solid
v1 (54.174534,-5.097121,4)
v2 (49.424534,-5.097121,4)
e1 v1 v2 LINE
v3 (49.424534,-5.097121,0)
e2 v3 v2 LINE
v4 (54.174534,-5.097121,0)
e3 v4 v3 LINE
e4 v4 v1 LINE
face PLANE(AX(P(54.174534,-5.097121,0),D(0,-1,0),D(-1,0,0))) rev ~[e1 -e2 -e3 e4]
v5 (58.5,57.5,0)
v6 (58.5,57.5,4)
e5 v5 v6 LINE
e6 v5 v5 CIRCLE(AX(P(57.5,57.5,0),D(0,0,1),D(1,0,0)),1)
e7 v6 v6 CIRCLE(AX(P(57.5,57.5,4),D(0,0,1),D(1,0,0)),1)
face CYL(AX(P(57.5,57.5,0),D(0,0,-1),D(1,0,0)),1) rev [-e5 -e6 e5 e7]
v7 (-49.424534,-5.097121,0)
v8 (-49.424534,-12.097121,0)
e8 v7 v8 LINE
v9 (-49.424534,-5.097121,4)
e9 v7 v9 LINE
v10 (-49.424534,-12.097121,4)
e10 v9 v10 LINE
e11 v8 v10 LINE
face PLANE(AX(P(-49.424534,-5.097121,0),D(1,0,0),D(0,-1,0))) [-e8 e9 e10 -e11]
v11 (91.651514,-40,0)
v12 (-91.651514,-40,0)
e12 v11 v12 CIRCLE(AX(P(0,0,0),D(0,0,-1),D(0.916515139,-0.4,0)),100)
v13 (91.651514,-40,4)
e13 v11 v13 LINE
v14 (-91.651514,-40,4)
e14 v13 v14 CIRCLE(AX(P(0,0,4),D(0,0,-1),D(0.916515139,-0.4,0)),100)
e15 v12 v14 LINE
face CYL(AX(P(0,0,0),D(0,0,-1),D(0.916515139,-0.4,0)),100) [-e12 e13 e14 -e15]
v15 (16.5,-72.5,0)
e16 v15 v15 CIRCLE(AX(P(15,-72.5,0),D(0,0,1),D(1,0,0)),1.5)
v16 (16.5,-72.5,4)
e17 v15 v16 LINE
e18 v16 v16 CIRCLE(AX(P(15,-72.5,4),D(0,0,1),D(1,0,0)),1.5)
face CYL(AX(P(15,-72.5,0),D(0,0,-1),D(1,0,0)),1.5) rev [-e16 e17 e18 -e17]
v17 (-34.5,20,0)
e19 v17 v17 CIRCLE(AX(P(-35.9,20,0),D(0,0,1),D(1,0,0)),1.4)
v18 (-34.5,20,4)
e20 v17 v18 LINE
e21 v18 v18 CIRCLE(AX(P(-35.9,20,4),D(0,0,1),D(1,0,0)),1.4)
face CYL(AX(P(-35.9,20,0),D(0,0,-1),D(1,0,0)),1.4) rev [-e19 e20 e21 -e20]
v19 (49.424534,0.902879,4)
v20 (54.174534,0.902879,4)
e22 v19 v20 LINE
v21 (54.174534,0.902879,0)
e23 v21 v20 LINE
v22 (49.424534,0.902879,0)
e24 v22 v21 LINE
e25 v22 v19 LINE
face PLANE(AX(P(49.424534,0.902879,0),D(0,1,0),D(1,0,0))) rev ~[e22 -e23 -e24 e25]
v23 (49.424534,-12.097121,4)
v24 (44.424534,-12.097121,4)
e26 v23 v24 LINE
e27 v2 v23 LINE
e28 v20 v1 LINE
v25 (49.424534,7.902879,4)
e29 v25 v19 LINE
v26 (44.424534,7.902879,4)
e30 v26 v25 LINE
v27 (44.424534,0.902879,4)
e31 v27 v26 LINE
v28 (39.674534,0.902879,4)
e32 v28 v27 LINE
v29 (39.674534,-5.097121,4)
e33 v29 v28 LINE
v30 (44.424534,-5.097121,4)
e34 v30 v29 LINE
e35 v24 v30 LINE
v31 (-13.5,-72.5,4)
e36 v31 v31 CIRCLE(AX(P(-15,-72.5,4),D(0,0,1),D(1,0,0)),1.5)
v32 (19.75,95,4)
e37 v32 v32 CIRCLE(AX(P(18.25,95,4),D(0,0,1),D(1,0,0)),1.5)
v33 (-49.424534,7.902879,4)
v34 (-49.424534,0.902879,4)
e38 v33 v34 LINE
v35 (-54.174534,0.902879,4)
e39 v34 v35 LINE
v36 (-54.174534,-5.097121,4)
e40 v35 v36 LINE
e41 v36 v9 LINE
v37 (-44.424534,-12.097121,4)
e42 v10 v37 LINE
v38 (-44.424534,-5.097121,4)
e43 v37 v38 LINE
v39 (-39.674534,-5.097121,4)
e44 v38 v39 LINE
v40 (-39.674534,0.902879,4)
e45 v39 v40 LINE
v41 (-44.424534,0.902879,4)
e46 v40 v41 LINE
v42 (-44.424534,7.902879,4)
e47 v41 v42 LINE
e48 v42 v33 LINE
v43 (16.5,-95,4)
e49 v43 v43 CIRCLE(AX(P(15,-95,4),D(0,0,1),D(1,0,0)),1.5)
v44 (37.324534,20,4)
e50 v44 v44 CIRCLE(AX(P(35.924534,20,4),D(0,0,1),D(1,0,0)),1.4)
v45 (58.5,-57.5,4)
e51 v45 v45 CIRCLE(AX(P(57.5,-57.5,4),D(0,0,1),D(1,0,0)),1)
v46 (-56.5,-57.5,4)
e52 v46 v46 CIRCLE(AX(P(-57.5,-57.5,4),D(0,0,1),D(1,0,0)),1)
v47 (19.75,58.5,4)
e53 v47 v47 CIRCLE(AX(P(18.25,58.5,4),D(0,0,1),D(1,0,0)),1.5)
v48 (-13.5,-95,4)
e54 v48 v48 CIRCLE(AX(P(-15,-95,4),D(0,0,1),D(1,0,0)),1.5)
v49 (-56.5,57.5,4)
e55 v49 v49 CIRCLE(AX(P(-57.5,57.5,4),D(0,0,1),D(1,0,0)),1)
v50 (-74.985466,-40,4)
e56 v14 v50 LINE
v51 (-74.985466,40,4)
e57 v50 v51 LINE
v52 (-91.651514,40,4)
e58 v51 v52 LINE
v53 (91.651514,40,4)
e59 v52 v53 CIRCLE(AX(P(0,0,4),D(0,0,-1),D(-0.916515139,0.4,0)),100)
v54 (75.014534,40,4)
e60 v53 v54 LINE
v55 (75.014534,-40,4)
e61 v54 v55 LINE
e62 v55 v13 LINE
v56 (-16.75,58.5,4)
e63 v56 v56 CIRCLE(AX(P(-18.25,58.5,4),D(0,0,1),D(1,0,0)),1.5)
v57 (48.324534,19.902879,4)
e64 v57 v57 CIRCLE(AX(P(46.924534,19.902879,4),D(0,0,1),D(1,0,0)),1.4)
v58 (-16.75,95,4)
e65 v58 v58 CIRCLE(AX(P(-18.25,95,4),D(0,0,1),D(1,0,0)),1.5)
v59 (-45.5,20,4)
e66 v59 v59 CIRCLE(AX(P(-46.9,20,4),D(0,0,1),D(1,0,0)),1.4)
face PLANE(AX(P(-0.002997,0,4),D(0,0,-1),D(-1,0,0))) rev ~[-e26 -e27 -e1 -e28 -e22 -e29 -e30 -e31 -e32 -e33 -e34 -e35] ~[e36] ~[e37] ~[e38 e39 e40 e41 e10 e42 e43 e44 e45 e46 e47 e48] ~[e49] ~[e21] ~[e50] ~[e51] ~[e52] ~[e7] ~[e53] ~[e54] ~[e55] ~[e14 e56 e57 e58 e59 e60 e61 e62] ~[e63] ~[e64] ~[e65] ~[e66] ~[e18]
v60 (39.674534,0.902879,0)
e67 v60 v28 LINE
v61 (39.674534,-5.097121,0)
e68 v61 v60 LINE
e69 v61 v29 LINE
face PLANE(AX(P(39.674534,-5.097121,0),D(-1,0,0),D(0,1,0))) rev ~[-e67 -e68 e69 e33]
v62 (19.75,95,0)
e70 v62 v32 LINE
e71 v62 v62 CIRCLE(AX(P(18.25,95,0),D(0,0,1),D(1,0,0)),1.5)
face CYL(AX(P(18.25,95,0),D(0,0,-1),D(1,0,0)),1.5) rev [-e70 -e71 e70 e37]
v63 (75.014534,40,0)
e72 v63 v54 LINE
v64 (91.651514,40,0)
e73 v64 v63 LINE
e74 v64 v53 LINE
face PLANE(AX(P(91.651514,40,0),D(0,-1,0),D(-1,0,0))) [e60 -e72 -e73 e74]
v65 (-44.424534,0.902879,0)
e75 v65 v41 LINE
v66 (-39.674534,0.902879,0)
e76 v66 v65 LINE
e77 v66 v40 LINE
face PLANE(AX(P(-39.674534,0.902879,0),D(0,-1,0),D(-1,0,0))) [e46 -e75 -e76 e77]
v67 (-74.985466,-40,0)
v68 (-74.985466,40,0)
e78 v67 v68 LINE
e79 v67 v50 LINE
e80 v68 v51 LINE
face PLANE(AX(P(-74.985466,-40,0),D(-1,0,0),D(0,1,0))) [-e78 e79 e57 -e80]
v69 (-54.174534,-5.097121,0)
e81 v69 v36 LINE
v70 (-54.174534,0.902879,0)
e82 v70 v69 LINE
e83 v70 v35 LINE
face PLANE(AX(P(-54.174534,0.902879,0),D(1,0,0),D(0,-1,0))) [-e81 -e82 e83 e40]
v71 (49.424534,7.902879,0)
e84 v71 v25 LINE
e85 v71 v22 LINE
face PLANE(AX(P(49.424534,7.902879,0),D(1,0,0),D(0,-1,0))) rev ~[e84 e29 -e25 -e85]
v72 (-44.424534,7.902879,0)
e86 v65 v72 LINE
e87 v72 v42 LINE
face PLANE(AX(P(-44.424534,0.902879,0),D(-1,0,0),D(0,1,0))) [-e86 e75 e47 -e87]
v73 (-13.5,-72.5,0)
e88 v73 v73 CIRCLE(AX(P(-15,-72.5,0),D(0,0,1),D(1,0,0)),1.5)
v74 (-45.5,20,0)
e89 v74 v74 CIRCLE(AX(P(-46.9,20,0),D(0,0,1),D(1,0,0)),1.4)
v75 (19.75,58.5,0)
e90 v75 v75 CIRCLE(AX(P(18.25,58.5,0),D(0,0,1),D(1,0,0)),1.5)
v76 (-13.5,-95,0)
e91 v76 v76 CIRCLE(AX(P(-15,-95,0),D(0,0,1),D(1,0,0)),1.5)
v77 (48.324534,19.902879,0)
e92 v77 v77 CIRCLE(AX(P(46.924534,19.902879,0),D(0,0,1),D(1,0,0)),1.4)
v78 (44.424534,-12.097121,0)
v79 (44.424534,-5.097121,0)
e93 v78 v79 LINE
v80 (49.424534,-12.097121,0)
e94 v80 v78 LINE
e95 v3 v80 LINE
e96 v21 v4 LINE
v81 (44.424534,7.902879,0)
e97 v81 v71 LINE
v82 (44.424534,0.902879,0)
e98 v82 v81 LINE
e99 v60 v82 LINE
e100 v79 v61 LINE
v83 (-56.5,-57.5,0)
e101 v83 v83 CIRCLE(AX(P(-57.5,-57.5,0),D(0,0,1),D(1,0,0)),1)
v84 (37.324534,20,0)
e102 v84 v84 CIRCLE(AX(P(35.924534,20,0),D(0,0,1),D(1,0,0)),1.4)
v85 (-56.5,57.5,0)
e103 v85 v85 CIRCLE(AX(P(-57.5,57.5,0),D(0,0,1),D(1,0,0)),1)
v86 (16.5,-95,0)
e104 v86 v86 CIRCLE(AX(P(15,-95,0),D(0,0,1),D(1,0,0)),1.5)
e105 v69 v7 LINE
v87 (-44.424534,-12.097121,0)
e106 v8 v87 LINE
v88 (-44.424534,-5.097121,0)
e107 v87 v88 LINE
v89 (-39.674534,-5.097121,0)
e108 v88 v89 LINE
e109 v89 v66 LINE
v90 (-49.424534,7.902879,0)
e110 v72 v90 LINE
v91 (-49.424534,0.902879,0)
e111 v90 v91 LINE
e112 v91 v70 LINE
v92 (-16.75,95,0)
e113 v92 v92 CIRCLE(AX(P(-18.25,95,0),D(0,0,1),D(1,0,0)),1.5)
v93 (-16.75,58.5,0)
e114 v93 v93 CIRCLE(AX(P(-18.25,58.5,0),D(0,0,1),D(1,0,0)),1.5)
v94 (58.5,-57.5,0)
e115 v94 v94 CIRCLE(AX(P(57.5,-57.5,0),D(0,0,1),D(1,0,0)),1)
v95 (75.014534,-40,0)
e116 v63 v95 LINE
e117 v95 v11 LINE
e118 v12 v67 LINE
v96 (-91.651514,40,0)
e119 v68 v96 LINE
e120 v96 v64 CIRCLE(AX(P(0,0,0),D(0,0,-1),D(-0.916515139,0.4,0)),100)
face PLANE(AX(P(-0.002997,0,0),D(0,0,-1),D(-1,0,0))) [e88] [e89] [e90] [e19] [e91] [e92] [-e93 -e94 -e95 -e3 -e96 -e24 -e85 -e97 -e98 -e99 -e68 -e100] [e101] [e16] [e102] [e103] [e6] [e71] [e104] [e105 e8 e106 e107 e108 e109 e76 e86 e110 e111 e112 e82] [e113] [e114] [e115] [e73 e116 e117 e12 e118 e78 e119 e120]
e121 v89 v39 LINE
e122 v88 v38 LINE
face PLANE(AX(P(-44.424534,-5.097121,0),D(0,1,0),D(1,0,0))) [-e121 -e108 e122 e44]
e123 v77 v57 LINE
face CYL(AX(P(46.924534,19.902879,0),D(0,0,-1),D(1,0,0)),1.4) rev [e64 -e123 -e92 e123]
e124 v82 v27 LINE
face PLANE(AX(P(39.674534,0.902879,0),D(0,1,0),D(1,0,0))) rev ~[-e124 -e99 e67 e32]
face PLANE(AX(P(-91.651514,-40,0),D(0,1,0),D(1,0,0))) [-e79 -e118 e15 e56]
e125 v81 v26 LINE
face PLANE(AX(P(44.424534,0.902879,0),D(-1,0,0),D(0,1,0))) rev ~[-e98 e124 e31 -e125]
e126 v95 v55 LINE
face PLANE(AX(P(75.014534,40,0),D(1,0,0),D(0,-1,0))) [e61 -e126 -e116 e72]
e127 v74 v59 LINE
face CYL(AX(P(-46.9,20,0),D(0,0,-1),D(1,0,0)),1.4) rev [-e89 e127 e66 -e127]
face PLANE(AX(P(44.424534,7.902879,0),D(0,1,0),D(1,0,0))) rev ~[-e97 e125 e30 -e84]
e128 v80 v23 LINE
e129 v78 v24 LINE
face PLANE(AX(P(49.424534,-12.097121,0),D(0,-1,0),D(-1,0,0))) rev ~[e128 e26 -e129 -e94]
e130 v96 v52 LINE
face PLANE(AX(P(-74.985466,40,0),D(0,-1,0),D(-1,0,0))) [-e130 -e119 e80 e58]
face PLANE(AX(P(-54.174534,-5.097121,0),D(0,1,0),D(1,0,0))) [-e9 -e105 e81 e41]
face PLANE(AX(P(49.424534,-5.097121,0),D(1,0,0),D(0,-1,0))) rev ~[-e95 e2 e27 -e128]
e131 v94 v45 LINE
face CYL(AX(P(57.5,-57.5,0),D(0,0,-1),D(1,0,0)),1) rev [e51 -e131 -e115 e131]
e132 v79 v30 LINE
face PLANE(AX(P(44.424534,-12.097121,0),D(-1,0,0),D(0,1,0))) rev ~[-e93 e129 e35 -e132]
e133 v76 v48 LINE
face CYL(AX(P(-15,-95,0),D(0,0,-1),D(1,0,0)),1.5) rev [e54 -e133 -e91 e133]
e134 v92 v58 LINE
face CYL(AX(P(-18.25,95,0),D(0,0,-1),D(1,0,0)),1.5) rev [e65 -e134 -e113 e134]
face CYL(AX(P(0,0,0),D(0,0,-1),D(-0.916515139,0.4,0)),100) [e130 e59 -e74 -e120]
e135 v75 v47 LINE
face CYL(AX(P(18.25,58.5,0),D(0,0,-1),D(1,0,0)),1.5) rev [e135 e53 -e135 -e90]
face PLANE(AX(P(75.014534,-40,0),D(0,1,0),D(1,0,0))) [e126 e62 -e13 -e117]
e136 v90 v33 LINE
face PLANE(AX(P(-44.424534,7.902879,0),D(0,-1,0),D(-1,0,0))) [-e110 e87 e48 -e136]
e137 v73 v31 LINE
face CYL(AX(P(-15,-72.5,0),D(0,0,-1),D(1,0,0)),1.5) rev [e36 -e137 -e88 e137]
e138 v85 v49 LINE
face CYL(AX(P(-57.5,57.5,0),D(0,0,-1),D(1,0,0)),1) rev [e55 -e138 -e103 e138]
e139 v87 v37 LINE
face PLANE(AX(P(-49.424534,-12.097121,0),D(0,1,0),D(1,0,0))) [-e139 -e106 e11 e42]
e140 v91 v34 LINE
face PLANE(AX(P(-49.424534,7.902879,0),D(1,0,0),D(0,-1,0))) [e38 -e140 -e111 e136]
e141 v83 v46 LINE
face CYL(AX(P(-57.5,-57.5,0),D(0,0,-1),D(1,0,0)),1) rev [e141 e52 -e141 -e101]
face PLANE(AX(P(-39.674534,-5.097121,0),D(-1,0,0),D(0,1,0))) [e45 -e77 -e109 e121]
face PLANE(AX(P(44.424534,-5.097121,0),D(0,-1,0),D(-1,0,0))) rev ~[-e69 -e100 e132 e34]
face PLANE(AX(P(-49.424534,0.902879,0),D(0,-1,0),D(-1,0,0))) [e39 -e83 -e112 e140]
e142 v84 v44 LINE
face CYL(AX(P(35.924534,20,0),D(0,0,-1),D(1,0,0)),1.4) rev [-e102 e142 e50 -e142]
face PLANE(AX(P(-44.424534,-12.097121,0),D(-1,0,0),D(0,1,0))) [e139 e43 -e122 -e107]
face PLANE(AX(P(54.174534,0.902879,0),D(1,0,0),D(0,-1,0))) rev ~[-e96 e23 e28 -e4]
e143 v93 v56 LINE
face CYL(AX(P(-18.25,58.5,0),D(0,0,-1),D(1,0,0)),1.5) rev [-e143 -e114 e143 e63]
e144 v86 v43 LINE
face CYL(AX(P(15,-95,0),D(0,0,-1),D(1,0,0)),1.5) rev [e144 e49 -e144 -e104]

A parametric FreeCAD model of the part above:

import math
import FreeCAD as App
import Part
import Sketcher

V = App.Vector


def add_polygon(sketch, points):
    """Adds a closed chain of lines whose ends are joined by coincident constraints."""
    first, n = sketch.GeometryCount, len(points)
    for a, b in zip(points, points[1:] + points[:1]):
        sketch.addGeometry(Part.LineSegment(App.Vector(*a, 0), App.Vector(*b, 0)), False)
    for i in range(n):
        sketch.addConstraint(Sketcher.Constraint("Coincident", first + i, 2, first + (i + 1) % n, 1))

doc = App.newDocument("Part")
body = doc.addObject("PartDesign::Body", "Body")

# Sketch on XY plane
sketch1 = body.newObject("Sketcher::SketchObject", "Sketch")
sketch1.AttachmentSupport = (doc.getObject("XY_Plane"), [""])
sketch1.MapMode = "FlatFace"
sketch1.addGeometry(Part.LineSegment(V(91.7, -40, 0), V(75, -40, 0)), False)  # 0
sketch1.addGeometry(Part.LineSegment(V(75, -40, 0), V(75, 40, 0)), False)  # 1
sketch1.addGeometry(Part.LineSegment(V(75, 40, 0), V(91.7, 40, 0)), False)  # 2
sketch1.addGeometry(Part.ArcOfCircle(Part.Circle(V(0, 0, 0), V(0, 0, 1), 100), math.radians(24), math.radians(156)), False)  # 3
sketch1.addGeometry(Part.LineSegment(V(-91.7, 40, 0), V(-75, 40, 0)), False)  # 4
sketch1.addGeometry(Part.LineSegment(V(-75, 40, 0), V(-75, -40, 0)), False)  # 5
sketch1.addGeometry(Part.LineSegment(V(-75, -40, 0), V(-91.7, -40, 0)), False)  # 6
sketch1.addGeometry(Part.ArcOfCircle(Part.Circle(V(0, 0, 0), V(0, 0, 1), 100), math.radians(-156), math.radians(-24)), False)  # 7
sketch1.addGeometry(Part.Circle(V(57.5, -57.5, 0), V(0, 0, 1), 1), False)  # 8
sketch1.addGeometry(Part.Circle(V(15, -95, 0), V(0, 0, 1), 1.5), False)  # 9
sketch1.addGeometry(Part.Circle(V(15, -72.5, 0), V(0, 0, 1), 1.5), False)  # 10
add_polygon(sketch1, [(49.4, -5.1), (49.4, -12.1), (44.4, -12.1), (44.4, -5.1), (39.7, -5.1), (39.7, 0.9), (44.4, 0.9), (44.4, 7.9), (49.4, 7.9), (49.4, 0.9), (54.2, 0.9), (54.2, -5.1)])  # lines 11-22
sketch1.addGeometry(Part.Circle(V(-15, -95, 0), V(0, 0, 1), 1.5), False)  # 23
sketch1.addGeometry(Part.Circle(V(-15, -72.5, 0), V(0, 0, 1), 1.5), False)  # 24
sketch1.addGeometry(Part.Circle(V(-57.5, -57.5, 0), V(0, 0, 1), 1), False)  # 25
add_polygon(sketch1, [(-54.2, 0.9), (-49.4, 0.9), (-49.4, 7.9), (-44.4, 7.9), (-44.4, 0.9), (-39.7, 0.9), (-39.7, -5.1), (-44.4, -5.1), (-44.4, -12.1), (-49.4, -12.1), (-49.4, -5.1), (-54.2, -5.1)])  # lines 26-37
sketch1.addGeometry(Part.Circle(V(46.9, 19.9, 0), V(0, 0, 1), 1.4), False)  # 38
sketch1.addGeometry(Part.Circle(V(35.9, 20, 0), V(0, 0, 1), 1.4), False)  # 39
sketch1.addGeometry(Part.Circle(V(57.5, 57.5, 0), V(0, 0, 1), 1), False)  # 40
sketch1.addGeometry(Part.Circle(V(18.2, 58.5, 0), V(0, 0, 1), 1.5), False)  # 41
sketch1.addGeometry(Part.Circle(V(18.2, 95, 0), V(0, 0, 1), 1.5), False)  # 42
sketch1.addGeometry(Part.Circle(V(-35.9, 20, 0), V(0, 0, 1), 1.4), False)  # 43
sketch1.addGeometry(Part.Circle(V(-46.9, 20, 0), V(0, 0, 1), 1.4), False)  # 44
sketch1.addGeometry(Part.Circle(V(-18.2, 58.5, 0), V(0, 0, 1), 1.5), False)  # 45
sketch1.addGeometry(Part.Circle(V(-18.2, 95, 0), V(0, 0, 1), 1.5), False)  # 46
sketch1.addGeometry(Part.Circle(V(-57.5, 57.5, 0), V(0, 0, 1), 1), False)  # 47
sketch1.addConstraint(Sketcher.Constraint("Coincident", 0, 2, 1, 1))
sketch1.addConstraint(Sketcher.Constraint("Coincident", 1, 2, 2, 1))
sketch1.addConstraint(Sketcher.Constraint("Coincident", 2, 2, 3, 1))
sketch1.addConstraint(Sketcher.Constraint("Coincident", 3, 2, 4, 1))
sketch1.addConstraint(Sketcher.Constraint("Coincident", 4, 2, 5, 1))
sketch1.addConstraint(Sketcher.Constraint("Coincident", 5, 2, 6, 1))
sketch1.addConstraint(Sketcher.Constraint("Coincident", 6, 2, 7, 1))
sketch1.addConstraint(Sketcher.Constraint("Coincident", 7, 2, 0, 1))
sketch1.addConstraint(Sketcher.Constraint("Horizontal", 0))
sketch1.addConstraint(Sketcher.Constraint("Vertical", 1))
sketch1.addConstraint(Sketcher.Constraint("Horizontal", 2))
sketch1.addConstraint(Sketcher.Constraint("Horizontal", 4))
sketch1.addConstraint(Sketcher.Constraint("Vertical", 5))
sketch1.addConstraint(Sketcher.Constraint("Horizontal", 6))
sketch1.addConstraint(Sketcher.Constraint("Vertical", 11))
sketch1.addConstraint(Sketcher.Constraint("Horizontal", 12))
sketch1.addConstraint(Sketcher.Constraint("Vertical", 13))
sketch1.addConstraint(Sketcher.Constraint("Horizontal", 14))
sketch1.addConstraint(Sketcher.Constraint("Vertical", 15))
sketch1.addConstraint(Sketcher.Constraint("Horizontal", 16))
sketch1.addConstraint(Sketcher.Constraint("Vertical", 17))
sketch1.addConstraint(Sketcher.Constraint("Horizontal", 18))
sketch1.addConstraint(Sketcher.Constraint("Vertical", 19))
sketch1.addConstraint(Sketcher.Constraint("Horizontal", 20))
sketch1.addConstraint(Sketcher.Constraint("Vertical", 21))
sketch1.addConstraint(Sketcher.Constraint("Horizontal", 22))
sketch1.addConstraint(Sketcher.Constraint("Horizontal", 26))
sketch1.addConstraint(Sketcher.Constraint("Vertical", 27))
sketch1.addConstraint(Sketcher.Constraint("Horizontal", 28))
sketch1.addConstraint(Sketcher.Constraint("Vertical", 29))
sketch1.addConstraint(Sketcher.Constraint("Horizontal", 30))
sketch1.addConstraint(Sketcher.Constraint("Vertical", 31))
sketch1.addConstraint(Sketcher.Constraint("Horizontal", 32))
sketch1.addConstraint(Sketcher.Constraint("Vertical", 33))
sketch1.addConstraint(Sketcher.Constraint("Horizontal", 34))
sketch1.addConstraint(Sketcher.Constraint("Vertical", 35))
sketch1.addConstraint(Sketcher.Constraint("Horizontal", 36))
sketch1.addConstraint(Sketcher.Constraint("Vertical", 37))
sketch1.addConstraint(Sketcher.Constraint("Coincident", 3, 3, -1, 1))
sketch1.addConstraint(Sketcher.Constraint("Coincident", 7, 3, -1, 1))
sketch1.addConstraint(Sketcher.Constraint("Equal", 3, 7))
sketch1.addConstraint(Sketcher.Constraint("Equal", 9, 10))
sketch1.addConstraint(Sketcher.Constraint("Equal", 10, 23))
sketch1.addConstraint(Sketcher.Constraint("Equal", 23, 24))
sketch1.addConstraint(Sketcher.Constraint("Equal", 8, 25))
sketch1.addConstraint(Sketcher.Constraint("Equal", 38, 39))
sketch1.addConstraint(Sketcher.Constraint("Equal", 25, 40))
sketch1.addConstraint(Sketcher.Constraint("Equal", 24, 41))
sketch1.addConstraint(Sketcher.Constraint("Equal", 41, 42))
sketch1.addConstraint(Sketcher.Constraint("Equal", 39, 43))
sketch1.addConstraint(Sketcher.Constraint("Equal", 43, 44))
sketch1.addConstraint(Sketcher.Constraint("Equal", 42, 45))
sketch1.addConstraint(Sketcher.Constraint("Equal", 45, 46))
sketch1.addConstraint(Sketcher.Constraint("Equal", 40, 47))
sketch1.addConstraint(Sketcher.Constraint("Symmetric", 25, 3, 40, 3, -1, 1))
sketch1.addConstraint(Sketcher.Constraint("Symmetric", 8, 3, 47, 3, -1, 1))
sketch1.addConstraint(Sketcher.Constraint("Symmetric", 9, 3, 23, 3, -2))
sketch1.addConstraint(Sketcher.Constraint("Symmetric", 10, 3, 24, 3, -2))
sketch1.addConstraint(Sketcher.Constraint("Symmetric", 8, 3, 25, 3, -2))
sketch1.addConstraint(Sketcher.Constraint("Symmetric", 41, 3, 45, 3, -2))
sketch1.addConstraint(Sketcher.Constraint("Symmetric", 42, 3, 46, 3, -2))
sketch1.addConstraint(Sketcher.Constraint("Symmetric", 19, 2, 26, 2, -2))
sketch1.addConstraint(Sketcher.Constraint("Symmetric", 17, 2, 28, 2, -2))
sketch1.addConstraint(Sketcher.Constraint("Symmetric", 15, 2, 30, 2, -2))
sketch1.addConstraint(Sketcher.Constraint("Symmetric", 13, 2, 32, 2, -2))
sketch1.addConstraint(Sketcher.Constraint("Symmetric", 11, 2, 34, 2, -2))
sketch1.addConstraint(Sketcher.Constraint("Symmetric", 21, 2, 36, 2, -2))
sketch1.addConstraint(Sketcher.Constraint("Horizontal", 39, 3, 43, 3))
sketch1.addConstraint(Sketcher.Constraint("Horizontal", 43, 3, 44, 3))
sketch1.addConstraint(Sketcher.Constraint("Horizontal", 2, 2, 3, 2))
sketch1.addConstraint(Sketcher.Constraint("Horizontal", 0, 2, 5, 2))
sketch1.addConstraint(Sketcher.Constraint("Horizontal", 16, 2, 19, 2))
sketch1.addConstraint(Sketcher.Constraint("Horizontal", 14, 2, 21, 2))
sketch1.addConstraint(Sketcher.Constraint("Vertical", 9, 3, 10, 3))
sketch1.addConstraint(Sketcher.Constraint("Vertical", 41, 3, 42, 3))
sketch1.addConstraint(Sketcher.Constraint("Vertical", 3, 2, 6, 2))
sketch1.addConstraint(Sketcher.Constraint("Vertical", 13, 2, 16, 2))
sketch1.addConstraint(Sketcher.Constraint("Vertical", 11, 2, 18, 2))
sketch1.addConstraint(Sketcher.Constraint("Equal", 16, 20))
sketch1.addConstraint(Sketcher.Constraint("Equal", 13, 17))
sketch1.addConstraint(Sketcher.Constraint("Diameter", 8, 2.0))
sketch1.addConstraint(Sketcher.Constraint("Diameter", 9, 3.0))
sketch1.addConstraint(Sketcher.Constraint("Radius", 3, 100.0))
sketch1.addConstraint(Sketcher.Constraint("Diameter", 38, 2.8))
sketch1.addConstraint(Sketcher.Constraint("DistanceX", 12, 2, 12, 1, 5.0))
sketch1.addConstraint(Sketcher.Constraint("DistanceY", 1, 1, 1, 2, 80.0))
sketch1.addConstraint(Sketcher.Constraint("DistanceY", 11, 2, 11, 1, 7.0))
sketch1.addConstraint(Sketcher.Constraint("DistanceY", 15, 1, 15, 2, 6.0))
sketch1.addConstraint(Sketcher.Constraint("DistanceX", -1, 1, 9, 3, 15.0))
sketch1.addConstraint(Sketcher.Constraint("DistanceY", 9, 3, -1, 1, 95.0))
sketch1.addConstraint(Sketcher.Constraint("DistanceY", -1, 1, 39, 3, 20.0))
sketch1.addConstraint(Sketcher.Constraint("DistanceY", -1, 1, 42, 3, 95.0))
sketch1.addConstraint(Sketcher.Constraint("DistanceY", 10, 3, 8, 3, 15.0))
sketch1.addConstraint(Sketcher.Constraint("DistanceX", 39, 3, 38, 3, 11.0))
sketch1.addConstraint(Sketcher.Constraint("DistanceY", 8, 3, 40, 3, 115.0))
sketch1.addConstraint(Sketcher.Constraint("DistanceY", 40, 3, 41, 3, 1.0))
sketch1.addConstraint(Sketcher.Constraint("DistanceX", 44, 3, 43, 3, 11.0))
sketch1.addConstraint(Sketcher.Constraint("DistanceY", 11, 2, 38, 3, 32.0))
sketch1.addConstraint(Sketcher.Constraint("DistanceX", 14, 2, 14, 1, 4.75))
sketch1.addConstraint(Sketcher.Constraint("DistanceX", -1, 1, 8, 3, 57.5))
sketch1.addConstraint(Sketcher.Constraint("DistanceX", 43, 3, -1, 1, 35.9))
sketch1.addConstraint(Sketcher.Constraint("DistanceX", 45, 3, 41, 3, 36.5))
sketch1.addConstraint(Sketcher.Constraint("DistanceX", 38, 3, 11, 2, 2.5))
sketch1.addConstraint(Sketcher.Constraint("DistanceX", 38, 3, 0, 2, 28.09))
sketch1.addConstraint(Sketcher.Constraint("DistanceX", 0, 2, 0, 1, 16.63698))
sketch1.addConstraint(Sketcher.Constraint("DistanceX", 4, 1, 4, 2, 16.666048))
sketch1.addConstraint(Sketcher.Constraint("DistanceY", -1, 1, 38, 3, 19.902879))
pad1 = body.newObject("PartDesign::Pad", "Pad")
pad1.Profile = sketch1
pad1.Length = 4

doc.recompute()
